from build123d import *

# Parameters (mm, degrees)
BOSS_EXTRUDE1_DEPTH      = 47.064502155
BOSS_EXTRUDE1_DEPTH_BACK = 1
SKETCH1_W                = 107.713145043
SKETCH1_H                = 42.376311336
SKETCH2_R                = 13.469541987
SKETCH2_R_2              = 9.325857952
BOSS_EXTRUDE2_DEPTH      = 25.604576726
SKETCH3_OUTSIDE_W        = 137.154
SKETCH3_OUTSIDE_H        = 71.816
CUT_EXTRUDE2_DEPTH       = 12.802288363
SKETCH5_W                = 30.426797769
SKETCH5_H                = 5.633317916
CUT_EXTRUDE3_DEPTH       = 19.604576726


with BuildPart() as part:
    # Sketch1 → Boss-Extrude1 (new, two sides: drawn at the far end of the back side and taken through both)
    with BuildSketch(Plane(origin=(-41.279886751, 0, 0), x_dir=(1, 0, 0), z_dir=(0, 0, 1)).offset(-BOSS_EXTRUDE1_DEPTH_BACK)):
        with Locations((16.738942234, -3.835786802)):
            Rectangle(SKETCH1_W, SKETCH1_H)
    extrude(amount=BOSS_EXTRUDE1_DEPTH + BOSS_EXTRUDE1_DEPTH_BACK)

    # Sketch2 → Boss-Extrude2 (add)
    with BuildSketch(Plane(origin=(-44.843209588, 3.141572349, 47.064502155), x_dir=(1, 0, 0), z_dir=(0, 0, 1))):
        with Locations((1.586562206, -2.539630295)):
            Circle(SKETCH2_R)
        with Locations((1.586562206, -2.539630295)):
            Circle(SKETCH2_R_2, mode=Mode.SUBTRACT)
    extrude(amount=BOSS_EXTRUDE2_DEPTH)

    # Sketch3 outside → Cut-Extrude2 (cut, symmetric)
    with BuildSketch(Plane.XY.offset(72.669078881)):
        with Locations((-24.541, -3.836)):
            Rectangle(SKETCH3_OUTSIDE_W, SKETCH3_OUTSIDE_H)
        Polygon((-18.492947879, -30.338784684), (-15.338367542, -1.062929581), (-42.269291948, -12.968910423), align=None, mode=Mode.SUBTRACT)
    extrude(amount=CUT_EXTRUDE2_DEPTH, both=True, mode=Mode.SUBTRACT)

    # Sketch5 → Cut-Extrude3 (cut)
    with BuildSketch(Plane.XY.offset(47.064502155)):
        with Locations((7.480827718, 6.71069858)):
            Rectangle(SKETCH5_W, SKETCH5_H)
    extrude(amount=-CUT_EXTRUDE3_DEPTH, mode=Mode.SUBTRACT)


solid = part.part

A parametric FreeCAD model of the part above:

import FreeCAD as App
import Part
import Sketcher
from FreeCAD import Vector
Q = App.Units.Quantity

doc = App.newDocument("Part")
body = doc.addObject("PartDesign::Body", "Body")

sketch1 = body.newObject("Sketcher::SketchObject", "Sketch")
sketch1.AttachmentSupport = (doc.getObject("XY_Plane"), [""])
sketch1.MapMode = "FlatFace"
sketch1.addGeometry([
    Part.LineSegment(Vector(-78, 17, 0), Vector(-78, -25, 0)),
    Part.LineSegment(Vector(-78, -25, 0), Vector(29, -25, 0)),
    Part.LineSegment(Vector(29, -25, 0), Vector(29, 17, 0)),
    Part.LineSegment(Vector(29, 17, 0), Vector(-78, 17, 0)),
], False)
sketch1.addConstraint([
    Sketcher.Constraint("Coincident", 0, 2, 1, 1),
    Sketcher.Constraint("Coincident", 1, 2, 2, 1),
    Sketcher.Constraint("Coincident", 2, 2, 3, 1),
    Sketcher.Constraint("Coincident", 3, 2, 0, 1),
    Sketcher.Constraint("Vertical", 0),
    Sketcher.Constraint("Horizontal", 1),
    Sketcher.Constraint("Vertical", 2),
    Sketcher.Constraint("Horizontal", 3),
    Sketcher.Constraint("DistanceY", 0, 2, 0, 1, Q("42.376311 mm")),
    Sketcher.Constraint("DistanceX", 1, 1, 1, 2, Q("107.713145 mm")),
    Sketcher.Constraint("DistanceX", -1, 1, 1, 2, Q("29.315628 mm")),
    Sketcher.Constraint("DistanceY", -1, 1, 2, 2, Q("17.352369 mm")),
])
pad1 = body.newObject("PartDesign::Pad", "Pad")
pad1.Profile = sketch1
pad1.Type = "TwoLengths"
pad1.Length = 47.064502
pad1.Length2 = 1

sketch2 = body.newObject("Sketcher::SketchObject", "Sketch001")
sketch2.AttachmentSupport = (doc.getObject("XY_Plane"), [""])
sketch2.MapMode = "FlatFace"
sketch2.AttachmentOffset = App.Placement(Vector(0, 0, 47.064502), App.Rotation())
sketch2.addGeometry([
    Part.Circle(Vector(-43, 1, 0), Vector(0, 0, 1), 13),
    Part.Circle(Vector(-43, 1, 0), Vector(0, 0, 1), 9),
], False)
sketch2.addConstraint([
    Sketcher.Constraint("Coincident", 1, 3, 0, 3),
    Sketcher.Constraint("Diameter", 0, Q("26.939084 mm")),
    Sketcher.Constraint("Diameter", 1, Q("18.651716 mm")),
    Sketcher.Constraint("DistanceX", 0, 3, -1, 1, Q("43.256647 mm")),
    Sketcher.Constraint("DistanceY", -1, 1, 0, 3, Q("0.601942 mm")),
])
pad2 = body.newObject("PartDesign::Pad", "Pad001")
pad2.Profile = sketch2
pad2.Length = 25.604577

sketch3 = body.newObject("Sketcher::SketchObject", "Sketch002")
sketch3.AttachmentSupport = (doc.getObject("XY_Plane"), [""])
sketch3.MapMode = "FlatFace"
sketch3.AttachmentOffset = App.Placement(Vector(0, 0, 72.669079), App.Rotation())
sketch3.addGeometry([
    Part.LineSegment(Vector(-93, 32, 0), Vector(-93, -40, 0)),
    Part.LineSegment(Vector(-93, -40, 0), Vector(44, -40, 0)),
    Part.LineSegment(Vector(44, -40, 0), Vector(44, 32, 0)),
    Part.LineSegment(Vector(44, 32, 0), Vector(-93, 32, 0)),
    Part.LineSegment(Vector(-15, -1, 0), Vector(-18, -30, 0)),
    Part.LineSegment(Vector(-18, -30, 0), Vector(-42, -13, 0)),
    Part.LineSegment(Vector(-42, -13, 0), Vector(-15, -1, 0)),
], False)
sketch3.addConstraint([
    Sketcher.Constraint("Coincident", 0, 2, 1, 1),
    Sketcher.Constraint("Coincident", 1, 2, 2, 1),
    Sketcher.Constraint("Coincident", 2, 2, 3, 1),
    Sketcher.Constraint("Coincident", 3, 2, 0, 1),
    Sketcher.Constraint("Coincident", 4, 2, 5, 1),
    Sketcher.Constraint("Coincident", 5, 2, 6, 1),
    Sketcher.Constraint("Coincident", 6, 2, 4, 1),
    Sketcher.Constraint("Vertical", 0),
    Sketcher.Constraint("Horizontal", 1),
    Sketcher.Constraint("Vertical", 2),
    Sketcher.Constraint("Horizontal", 3),
    Sketcher.Constraint("Equal", 4, 5),
    Sketcher.Constraint("Equal", 5, 6),
    Sketcher.Constraint("DistanceX", 1, 1, 1, 2, Q("137.154 mm")),
    Sketcher.Constraint("DistanceY", 0, 2, 0, 1, Q("71.816 mm")),
    Sketcher.Constraint("DistanceX", 0, 2, -1, 1, Q("93.118 mm")),
    Sketcher.Constraint("DistanceY", 0, 2, -1, 1, Q("39.744 mm")),
    Sketcher.Constraint("DistanceX", 5, 2, -1, 1, Q("42.269292 mm")),
    Sketcher.Constraint("DistanceY", 5, 2, -1, 1, Q("12.96891 mm")),
    Sketcher.Constraint("DistanceY", 6, 2, -1, 1, Q("1.06293 mm")),
    Sketcher.Constraint("DistanceX", 4, 2, 6, 2, Q("3.15458 mm")),
])
pocket1 = body.newObject("PartDesign::Pocket", "Pocket")
pocket1.Profile = sketch3
pocket1.Length = 25.604577
pocket1.Midplane = True

sketch4 = body.newObject("Sketcher::SketchObject", "Sketch003")
sketch4.AttachmentSupport = (doc.getObject("XY_Plane"), [""])
sketch4.MapMode = "FlatFace"
sketch4.AttachmentOffset = App.Placement(Vector(0, 0, 47.064502), App.Rotation())
sketch4.addGeometry([
    Part.LineSegment(Vector(-8, 10, 0), Vector(-8, 4, 0)),
    Part.LineSegment(Vector(-8, 4, 0), Vector(23, 4, 0)),
    Part.LineSegment(Vector(23, 4, 0), Vector(23, 10, 0)),
    Part.LineSegment(Vector(23, 10, 0), Vector(-8, 10, 0)),
], False)
sketch4.addConstraint([
    Sketcher.Constraint("Coincident", 0, 2, 1, 1),
    Sketcher.Constraint("Coincident", 1, 2, 2, 1),
    Sketcher.Constraint("Coincident", 2, 2, 3, 1),
    Sketcher.Constraint("Coincident", 3, 2, 0, 1),
    Sketcher.Constraint("Vertical", 0),
    Sketcher.Constraint("Horizontal", 1),
    Sketcher.Constraint("Vertical", 2),
    Sketcher.Constraint("Horizontal", 3),
    Sketcher.Constraint("DistanceX", 1, 1, 1, 2, Q("30.426798 mm")),
    Sketcher.Constraint("DistanceY", 0, 2, 0, 1, Q("5.633318 mm")),
    Sketcher.Constraint("DistanceX", 0, 2, -1, 1, Q("7.732571 mm")),
    Sketcher.Constraint("DistanceY", -1, 1, 0, 2, Q("3.89404 mm")),
])
pocket2 = body.newObject("PartDesign::Pocket", "Pocket001")
pocket2.Profile = sketch4
pocket2.Length = 19.604577

doc.recompute()
